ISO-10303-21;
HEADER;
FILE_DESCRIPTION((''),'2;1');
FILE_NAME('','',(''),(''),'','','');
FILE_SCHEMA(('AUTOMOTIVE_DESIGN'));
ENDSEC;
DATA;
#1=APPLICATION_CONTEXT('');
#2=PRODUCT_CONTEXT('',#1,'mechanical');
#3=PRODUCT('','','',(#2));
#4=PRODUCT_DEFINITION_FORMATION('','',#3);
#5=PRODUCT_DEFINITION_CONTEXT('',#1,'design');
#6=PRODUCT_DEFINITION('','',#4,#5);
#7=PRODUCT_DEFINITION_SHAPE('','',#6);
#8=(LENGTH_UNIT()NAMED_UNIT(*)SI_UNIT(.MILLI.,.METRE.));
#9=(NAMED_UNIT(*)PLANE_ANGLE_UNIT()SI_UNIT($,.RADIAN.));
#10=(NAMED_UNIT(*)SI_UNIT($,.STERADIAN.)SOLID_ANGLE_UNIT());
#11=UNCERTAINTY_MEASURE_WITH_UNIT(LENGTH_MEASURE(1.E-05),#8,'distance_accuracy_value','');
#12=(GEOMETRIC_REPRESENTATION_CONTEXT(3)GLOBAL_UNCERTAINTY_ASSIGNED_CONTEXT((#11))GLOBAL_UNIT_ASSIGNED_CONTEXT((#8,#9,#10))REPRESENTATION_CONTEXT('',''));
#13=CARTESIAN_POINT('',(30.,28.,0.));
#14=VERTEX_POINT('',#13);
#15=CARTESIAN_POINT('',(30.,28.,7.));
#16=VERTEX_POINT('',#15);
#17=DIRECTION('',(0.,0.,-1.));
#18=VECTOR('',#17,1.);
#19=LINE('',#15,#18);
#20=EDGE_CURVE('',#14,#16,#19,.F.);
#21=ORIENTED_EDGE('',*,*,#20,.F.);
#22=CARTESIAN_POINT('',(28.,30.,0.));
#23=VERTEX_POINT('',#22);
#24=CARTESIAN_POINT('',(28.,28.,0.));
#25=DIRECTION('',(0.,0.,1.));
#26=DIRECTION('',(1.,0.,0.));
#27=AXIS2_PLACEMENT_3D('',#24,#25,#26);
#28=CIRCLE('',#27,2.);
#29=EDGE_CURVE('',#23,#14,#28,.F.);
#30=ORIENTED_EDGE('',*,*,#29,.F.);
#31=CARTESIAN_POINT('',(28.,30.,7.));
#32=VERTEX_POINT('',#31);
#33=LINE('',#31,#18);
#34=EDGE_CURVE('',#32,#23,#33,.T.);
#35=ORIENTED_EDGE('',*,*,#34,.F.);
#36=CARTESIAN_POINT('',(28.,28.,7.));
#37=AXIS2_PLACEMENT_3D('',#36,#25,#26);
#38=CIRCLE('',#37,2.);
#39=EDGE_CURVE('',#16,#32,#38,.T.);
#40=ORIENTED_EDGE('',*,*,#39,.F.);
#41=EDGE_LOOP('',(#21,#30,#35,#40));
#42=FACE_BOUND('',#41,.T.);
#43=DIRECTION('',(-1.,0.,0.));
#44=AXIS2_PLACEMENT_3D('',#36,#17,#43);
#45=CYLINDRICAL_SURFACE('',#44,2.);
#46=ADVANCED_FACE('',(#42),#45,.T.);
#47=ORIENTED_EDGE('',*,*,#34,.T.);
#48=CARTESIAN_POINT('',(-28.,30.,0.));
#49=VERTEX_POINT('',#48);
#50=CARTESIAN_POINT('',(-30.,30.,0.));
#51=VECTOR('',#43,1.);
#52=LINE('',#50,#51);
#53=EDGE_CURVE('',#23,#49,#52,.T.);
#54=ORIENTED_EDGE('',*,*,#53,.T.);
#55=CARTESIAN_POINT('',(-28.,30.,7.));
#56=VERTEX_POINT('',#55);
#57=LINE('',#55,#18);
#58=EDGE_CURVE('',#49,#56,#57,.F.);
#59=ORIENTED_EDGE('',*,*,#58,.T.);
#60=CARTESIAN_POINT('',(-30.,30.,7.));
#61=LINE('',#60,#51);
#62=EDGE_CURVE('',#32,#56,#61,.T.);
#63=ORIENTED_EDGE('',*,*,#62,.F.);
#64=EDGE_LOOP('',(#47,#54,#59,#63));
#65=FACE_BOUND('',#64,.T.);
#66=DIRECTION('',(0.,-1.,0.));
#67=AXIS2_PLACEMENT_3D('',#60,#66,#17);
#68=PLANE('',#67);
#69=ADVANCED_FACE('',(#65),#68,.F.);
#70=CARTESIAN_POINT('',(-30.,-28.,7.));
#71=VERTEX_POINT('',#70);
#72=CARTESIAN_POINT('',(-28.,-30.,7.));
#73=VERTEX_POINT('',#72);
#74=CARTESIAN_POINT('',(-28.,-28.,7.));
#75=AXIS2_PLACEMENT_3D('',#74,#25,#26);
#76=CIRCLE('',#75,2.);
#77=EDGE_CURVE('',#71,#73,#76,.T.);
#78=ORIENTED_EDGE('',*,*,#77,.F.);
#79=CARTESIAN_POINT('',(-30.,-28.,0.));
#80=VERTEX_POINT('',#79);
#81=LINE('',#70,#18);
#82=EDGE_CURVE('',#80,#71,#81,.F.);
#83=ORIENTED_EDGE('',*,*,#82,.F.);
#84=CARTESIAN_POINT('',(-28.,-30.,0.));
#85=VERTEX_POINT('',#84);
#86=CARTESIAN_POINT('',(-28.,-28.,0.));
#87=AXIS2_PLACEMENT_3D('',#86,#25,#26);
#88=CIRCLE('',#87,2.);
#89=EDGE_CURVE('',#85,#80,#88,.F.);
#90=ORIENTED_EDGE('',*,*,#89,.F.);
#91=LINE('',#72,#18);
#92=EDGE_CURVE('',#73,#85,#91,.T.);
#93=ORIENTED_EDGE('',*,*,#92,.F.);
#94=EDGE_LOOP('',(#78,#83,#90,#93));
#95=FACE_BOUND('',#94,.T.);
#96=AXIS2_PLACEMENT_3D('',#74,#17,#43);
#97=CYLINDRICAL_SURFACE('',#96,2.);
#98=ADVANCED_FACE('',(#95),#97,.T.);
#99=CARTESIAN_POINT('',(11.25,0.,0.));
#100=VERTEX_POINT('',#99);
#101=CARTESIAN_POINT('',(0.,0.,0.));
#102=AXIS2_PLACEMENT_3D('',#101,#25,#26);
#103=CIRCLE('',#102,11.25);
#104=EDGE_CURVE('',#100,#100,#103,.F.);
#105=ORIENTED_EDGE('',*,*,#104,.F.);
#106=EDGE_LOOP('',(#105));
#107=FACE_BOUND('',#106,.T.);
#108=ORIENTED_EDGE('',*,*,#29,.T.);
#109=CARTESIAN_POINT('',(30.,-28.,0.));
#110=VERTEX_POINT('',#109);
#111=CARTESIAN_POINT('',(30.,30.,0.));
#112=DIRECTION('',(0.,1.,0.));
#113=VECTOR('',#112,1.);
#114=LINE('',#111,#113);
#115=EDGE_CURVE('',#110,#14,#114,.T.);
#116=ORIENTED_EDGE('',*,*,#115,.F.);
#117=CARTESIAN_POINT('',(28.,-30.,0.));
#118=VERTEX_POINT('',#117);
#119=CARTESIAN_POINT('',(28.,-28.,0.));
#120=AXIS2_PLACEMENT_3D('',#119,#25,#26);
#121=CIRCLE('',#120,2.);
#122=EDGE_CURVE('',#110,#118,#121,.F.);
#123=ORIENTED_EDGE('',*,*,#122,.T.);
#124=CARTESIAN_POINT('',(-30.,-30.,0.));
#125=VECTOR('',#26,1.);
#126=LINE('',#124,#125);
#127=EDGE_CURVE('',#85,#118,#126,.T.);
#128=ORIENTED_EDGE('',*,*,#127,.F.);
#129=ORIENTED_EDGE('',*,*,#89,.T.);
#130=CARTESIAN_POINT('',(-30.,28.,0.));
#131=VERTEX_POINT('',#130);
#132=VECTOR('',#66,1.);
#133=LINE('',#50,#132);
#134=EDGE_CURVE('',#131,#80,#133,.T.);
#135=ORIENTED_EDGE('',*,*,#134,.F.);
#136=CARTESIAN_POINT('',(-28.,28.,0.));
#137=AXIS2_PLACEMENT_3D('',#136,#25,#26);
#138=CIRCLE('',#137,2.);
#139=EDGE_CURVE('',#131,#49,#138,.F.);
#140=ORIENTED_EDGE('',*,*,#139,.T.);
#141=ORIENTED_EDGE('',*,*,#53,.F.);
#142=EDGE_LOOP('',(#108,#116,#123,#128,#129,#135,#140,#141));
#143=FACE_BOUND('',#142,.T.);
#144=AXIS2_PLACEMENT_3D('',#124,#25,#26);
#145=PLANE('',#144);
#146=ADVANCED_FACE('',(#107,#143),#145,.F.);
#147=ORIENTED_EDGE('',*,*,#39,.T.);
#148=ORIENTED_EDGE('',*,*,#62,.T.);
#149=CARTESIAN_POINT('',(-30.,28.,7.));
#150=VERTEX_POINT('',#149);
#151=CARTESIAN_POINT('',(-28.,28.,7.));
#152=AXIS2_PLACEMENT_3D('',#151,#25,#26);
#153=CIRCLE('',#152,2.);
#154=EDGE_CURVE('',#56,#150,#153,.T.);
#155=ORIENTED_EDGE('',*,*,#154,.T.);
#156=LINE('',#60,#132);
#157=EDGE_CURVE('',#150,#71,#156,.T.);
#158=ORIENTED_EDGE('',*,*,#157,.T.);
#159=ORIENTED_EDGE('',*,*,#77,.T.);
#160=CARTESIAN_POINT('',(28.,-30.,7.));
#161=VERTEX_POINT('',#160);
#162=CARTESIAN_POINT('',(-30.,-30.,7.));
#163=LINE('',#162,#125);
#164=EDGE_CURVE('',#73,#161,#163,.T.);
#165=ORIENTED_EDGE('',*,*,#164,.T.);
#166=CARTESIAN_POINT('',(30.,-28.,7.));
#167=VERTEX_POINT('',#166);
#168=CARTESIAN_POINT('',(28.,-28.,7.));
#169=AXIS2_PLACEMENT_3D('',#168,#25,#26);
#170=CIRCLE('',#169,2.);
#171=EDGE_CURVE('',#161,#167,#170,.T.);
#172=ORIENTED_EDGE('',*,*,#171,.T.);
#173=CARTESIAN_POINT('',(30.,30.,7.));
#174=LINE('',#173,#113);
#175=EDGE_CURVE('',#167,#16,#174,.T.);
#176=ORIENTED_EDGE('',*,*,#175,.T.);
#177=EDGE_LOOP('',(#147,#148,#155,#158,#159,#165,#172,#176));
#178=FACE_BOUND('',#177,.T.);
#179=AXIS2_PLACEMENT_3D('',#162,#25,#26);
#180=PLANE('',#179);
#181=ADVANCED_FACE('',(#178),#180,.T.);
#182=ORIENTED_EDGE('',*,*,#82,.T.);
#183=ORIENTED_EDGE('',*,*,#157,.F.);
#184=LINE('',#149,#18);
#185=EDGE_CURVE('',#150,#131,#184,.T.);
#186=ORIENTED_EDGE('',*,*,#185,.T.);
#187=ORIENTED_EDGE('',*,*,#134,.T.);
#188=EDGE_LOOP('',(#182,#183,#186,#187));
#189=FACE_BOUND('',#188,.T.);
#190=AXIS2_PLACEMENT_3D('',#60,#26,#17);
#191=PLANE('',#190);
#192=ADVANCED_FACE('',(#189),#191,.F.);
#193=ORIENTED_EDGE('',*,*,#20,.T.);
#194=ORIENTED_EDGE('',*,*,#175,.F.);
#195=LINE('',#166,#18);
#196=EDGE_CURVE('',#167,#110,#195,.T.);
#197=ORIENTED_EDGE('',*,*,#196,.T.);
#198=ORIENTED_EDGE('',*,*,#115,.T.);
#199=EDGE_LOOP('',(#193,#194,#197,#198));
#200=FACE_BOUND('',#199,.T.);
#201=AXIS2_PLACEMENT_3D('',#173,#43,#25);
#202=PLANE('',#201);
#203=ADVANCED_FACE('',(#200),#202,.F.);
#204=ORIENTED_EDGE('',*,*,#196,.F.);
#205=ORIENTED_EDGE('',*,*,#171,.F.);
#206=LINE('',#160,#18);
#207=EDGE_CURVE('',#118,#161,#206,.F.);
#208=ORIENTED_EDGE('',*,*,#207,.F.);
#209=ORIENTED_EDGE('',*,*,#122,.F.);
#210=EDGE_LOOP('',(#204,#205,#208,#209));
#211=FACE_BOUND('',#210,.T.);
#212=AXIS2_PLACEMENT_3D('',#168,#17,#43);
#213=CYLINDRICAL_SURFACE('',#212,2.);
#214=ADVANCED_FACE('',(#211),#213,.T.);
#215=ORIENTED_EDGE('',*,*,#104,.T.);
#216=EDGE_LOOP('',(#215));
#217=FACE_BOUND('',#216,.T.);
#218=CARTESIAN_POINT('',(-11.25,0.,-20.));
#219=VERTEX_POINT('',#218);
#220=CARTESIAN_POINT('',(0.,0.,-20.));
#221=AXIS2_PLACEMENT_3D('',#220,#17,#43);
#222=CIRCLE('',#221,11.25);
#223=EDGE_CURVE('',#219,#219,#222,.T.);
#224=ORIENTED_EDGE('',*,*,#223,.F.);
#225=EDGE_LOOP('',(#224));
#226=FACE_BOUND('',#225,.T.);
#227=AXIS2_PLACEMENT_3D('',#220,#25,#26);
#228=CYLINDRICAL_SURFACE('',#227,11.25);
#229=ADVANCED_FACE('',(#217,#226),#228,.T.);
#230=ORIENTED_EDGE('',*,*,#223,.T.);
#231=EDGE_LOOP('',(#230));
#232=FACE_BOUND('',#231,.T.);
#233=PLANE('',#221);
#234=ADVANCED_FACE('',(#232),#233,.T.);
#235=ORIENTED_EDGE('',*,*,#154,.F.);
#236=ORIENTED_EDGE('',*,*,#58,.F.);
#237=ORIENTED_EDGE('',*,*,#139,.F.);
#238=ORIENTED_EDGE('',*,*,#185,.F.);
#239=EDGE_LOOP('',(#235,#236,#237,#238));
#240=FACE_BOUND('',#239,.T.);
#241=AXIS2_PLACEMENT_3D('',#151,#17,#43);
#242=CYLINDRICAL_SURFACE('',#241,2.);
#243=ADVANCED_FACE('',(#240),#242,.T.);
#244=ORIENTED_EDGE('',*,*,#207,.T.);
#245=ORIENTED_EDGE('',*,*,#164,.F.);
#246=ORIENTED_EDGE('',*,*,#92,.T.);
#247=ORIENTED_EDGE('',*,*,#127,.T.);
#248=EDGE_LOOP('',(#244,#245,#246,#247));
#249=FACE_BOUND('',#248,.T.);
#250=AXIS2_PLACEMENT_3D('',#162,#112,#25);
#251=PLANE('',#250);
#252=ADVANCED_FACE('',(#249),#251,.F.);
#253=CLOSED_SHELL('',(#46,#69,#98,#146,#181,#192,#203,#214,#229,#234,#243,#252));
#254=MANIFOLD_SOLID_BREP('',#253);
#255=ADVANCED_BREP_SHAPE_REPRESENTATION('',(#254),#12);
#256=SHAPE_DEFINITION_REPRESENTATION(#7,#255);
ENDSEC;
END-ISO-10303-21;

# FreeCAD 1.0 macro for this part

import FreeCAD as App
import Part
import Sketcher
from FreeCAD import Vector
Q = App.Units.Quantity


def edges_at(feature, points):
    """Names of the edges that pass closest to the given points."""
    edges = feature.Shape.Edges
    near = lambda p: min(range(len(edges)), key=lambda i: edges[i].distToShape(Part.Vertex(*p))[0])
    return sorted({f"Edge{near(p) + 1}" for p in points})

doc = App.newDocument("Part")
body = doc.addObject("PartDesign::Body", "Body")

# Sketch on XY plane
sketch1 = doc.addObject("Sketcher::SketchObject", "Sketch")
body.addObject(sketch1)
sketch1.AttachmentSupport = (doc.XY_Plane, [""])
sketch1.MapMode = "FlatFace"
sketch1.addGeometry([
    Part.LineSegment(Vector(-30, 30, 0), Vector(-30, -30, 0)),
    Part.LineSegment(Vector(-30, -30, 0), Vector(30, -30, 0)),
    Part.LineSegment(Vector(30, -30, 0), Vector(30, 30, 0)),
    Part.LineSegment(Vector(30, 30, 0), Vector(-30, 30, 0)),
], False)
sketch1.addConstraint([
    Sketcher.Constraint("Coincident", 0, 2, 1, 1),
    Sketcher.Constraint("Coincident", 1, 2, 2, 1),
    Sketcher.Constraint("Coincident", 2, 2, 3, 1),
    Sketcher.Constraint("Coincident", 3, 2, 0, 1),
    Sketcher.Constraint("Vertical", 0),
    Sketcher.Constraint("Horizontal", 1),
    Sketcher.Constraint("Vertical", 2),
    Sketcher.Constraint("Horizontal", 3),
    Sketcher.Constraint("Symmetric", 0, 2, 2, 2, -1, 1),
    Sketcher.Constraint("Equal", 3, 0),
    Sketcher.Constraint("DistanceX", 1, 1, 1, 2, Q("60 mm")),
])
pad1 = doc.addObject("PartDesign::Pad", "Pad")
body.addObject(pad1)
pad1.Profile = sketch1
pad1.Length = 7
doc.recompute()

fillet = doc.addObject("PartDesign::Fillet", "Fillet")
body.addObject(fillet)
fillet.Base = (pad1, edges_at(pad1, [
    (-30, 30, 3.5),
    (30, 30, 3.5),
    (30, -30, 3.5),
    (-30, -30, 3.5),
]))
fillet.Radius = 2

# Sketch on XY plane
sketch2 = doc.addObject("Sketcher::SketchObject", "Sketch001")
body.addObject(sketch2)
sketch2.AttachmentSupport = (doc.XY_Plane, [""])
sketch2.MapMode = "FlatFace"
sketch2.addGeometry(Part.Circle(Vector(0, 0, 0), Vector(0, 0, 1), 11.25), False)
sketch2.addConstraint([
    Sketcher.Constraint("Coincident", 0, 3, -1, 1),
    Sketcher.Constraint("Diameter", 0, Q("22.5 mm")),
])
pad2 = doc.addObject("PartDesign::Pad", "Pad001")
body.addObject(pad2)
pad2.Profile = sketch2
pad2.Length = 20
pad2.Reversed = True

doc.recompute()
